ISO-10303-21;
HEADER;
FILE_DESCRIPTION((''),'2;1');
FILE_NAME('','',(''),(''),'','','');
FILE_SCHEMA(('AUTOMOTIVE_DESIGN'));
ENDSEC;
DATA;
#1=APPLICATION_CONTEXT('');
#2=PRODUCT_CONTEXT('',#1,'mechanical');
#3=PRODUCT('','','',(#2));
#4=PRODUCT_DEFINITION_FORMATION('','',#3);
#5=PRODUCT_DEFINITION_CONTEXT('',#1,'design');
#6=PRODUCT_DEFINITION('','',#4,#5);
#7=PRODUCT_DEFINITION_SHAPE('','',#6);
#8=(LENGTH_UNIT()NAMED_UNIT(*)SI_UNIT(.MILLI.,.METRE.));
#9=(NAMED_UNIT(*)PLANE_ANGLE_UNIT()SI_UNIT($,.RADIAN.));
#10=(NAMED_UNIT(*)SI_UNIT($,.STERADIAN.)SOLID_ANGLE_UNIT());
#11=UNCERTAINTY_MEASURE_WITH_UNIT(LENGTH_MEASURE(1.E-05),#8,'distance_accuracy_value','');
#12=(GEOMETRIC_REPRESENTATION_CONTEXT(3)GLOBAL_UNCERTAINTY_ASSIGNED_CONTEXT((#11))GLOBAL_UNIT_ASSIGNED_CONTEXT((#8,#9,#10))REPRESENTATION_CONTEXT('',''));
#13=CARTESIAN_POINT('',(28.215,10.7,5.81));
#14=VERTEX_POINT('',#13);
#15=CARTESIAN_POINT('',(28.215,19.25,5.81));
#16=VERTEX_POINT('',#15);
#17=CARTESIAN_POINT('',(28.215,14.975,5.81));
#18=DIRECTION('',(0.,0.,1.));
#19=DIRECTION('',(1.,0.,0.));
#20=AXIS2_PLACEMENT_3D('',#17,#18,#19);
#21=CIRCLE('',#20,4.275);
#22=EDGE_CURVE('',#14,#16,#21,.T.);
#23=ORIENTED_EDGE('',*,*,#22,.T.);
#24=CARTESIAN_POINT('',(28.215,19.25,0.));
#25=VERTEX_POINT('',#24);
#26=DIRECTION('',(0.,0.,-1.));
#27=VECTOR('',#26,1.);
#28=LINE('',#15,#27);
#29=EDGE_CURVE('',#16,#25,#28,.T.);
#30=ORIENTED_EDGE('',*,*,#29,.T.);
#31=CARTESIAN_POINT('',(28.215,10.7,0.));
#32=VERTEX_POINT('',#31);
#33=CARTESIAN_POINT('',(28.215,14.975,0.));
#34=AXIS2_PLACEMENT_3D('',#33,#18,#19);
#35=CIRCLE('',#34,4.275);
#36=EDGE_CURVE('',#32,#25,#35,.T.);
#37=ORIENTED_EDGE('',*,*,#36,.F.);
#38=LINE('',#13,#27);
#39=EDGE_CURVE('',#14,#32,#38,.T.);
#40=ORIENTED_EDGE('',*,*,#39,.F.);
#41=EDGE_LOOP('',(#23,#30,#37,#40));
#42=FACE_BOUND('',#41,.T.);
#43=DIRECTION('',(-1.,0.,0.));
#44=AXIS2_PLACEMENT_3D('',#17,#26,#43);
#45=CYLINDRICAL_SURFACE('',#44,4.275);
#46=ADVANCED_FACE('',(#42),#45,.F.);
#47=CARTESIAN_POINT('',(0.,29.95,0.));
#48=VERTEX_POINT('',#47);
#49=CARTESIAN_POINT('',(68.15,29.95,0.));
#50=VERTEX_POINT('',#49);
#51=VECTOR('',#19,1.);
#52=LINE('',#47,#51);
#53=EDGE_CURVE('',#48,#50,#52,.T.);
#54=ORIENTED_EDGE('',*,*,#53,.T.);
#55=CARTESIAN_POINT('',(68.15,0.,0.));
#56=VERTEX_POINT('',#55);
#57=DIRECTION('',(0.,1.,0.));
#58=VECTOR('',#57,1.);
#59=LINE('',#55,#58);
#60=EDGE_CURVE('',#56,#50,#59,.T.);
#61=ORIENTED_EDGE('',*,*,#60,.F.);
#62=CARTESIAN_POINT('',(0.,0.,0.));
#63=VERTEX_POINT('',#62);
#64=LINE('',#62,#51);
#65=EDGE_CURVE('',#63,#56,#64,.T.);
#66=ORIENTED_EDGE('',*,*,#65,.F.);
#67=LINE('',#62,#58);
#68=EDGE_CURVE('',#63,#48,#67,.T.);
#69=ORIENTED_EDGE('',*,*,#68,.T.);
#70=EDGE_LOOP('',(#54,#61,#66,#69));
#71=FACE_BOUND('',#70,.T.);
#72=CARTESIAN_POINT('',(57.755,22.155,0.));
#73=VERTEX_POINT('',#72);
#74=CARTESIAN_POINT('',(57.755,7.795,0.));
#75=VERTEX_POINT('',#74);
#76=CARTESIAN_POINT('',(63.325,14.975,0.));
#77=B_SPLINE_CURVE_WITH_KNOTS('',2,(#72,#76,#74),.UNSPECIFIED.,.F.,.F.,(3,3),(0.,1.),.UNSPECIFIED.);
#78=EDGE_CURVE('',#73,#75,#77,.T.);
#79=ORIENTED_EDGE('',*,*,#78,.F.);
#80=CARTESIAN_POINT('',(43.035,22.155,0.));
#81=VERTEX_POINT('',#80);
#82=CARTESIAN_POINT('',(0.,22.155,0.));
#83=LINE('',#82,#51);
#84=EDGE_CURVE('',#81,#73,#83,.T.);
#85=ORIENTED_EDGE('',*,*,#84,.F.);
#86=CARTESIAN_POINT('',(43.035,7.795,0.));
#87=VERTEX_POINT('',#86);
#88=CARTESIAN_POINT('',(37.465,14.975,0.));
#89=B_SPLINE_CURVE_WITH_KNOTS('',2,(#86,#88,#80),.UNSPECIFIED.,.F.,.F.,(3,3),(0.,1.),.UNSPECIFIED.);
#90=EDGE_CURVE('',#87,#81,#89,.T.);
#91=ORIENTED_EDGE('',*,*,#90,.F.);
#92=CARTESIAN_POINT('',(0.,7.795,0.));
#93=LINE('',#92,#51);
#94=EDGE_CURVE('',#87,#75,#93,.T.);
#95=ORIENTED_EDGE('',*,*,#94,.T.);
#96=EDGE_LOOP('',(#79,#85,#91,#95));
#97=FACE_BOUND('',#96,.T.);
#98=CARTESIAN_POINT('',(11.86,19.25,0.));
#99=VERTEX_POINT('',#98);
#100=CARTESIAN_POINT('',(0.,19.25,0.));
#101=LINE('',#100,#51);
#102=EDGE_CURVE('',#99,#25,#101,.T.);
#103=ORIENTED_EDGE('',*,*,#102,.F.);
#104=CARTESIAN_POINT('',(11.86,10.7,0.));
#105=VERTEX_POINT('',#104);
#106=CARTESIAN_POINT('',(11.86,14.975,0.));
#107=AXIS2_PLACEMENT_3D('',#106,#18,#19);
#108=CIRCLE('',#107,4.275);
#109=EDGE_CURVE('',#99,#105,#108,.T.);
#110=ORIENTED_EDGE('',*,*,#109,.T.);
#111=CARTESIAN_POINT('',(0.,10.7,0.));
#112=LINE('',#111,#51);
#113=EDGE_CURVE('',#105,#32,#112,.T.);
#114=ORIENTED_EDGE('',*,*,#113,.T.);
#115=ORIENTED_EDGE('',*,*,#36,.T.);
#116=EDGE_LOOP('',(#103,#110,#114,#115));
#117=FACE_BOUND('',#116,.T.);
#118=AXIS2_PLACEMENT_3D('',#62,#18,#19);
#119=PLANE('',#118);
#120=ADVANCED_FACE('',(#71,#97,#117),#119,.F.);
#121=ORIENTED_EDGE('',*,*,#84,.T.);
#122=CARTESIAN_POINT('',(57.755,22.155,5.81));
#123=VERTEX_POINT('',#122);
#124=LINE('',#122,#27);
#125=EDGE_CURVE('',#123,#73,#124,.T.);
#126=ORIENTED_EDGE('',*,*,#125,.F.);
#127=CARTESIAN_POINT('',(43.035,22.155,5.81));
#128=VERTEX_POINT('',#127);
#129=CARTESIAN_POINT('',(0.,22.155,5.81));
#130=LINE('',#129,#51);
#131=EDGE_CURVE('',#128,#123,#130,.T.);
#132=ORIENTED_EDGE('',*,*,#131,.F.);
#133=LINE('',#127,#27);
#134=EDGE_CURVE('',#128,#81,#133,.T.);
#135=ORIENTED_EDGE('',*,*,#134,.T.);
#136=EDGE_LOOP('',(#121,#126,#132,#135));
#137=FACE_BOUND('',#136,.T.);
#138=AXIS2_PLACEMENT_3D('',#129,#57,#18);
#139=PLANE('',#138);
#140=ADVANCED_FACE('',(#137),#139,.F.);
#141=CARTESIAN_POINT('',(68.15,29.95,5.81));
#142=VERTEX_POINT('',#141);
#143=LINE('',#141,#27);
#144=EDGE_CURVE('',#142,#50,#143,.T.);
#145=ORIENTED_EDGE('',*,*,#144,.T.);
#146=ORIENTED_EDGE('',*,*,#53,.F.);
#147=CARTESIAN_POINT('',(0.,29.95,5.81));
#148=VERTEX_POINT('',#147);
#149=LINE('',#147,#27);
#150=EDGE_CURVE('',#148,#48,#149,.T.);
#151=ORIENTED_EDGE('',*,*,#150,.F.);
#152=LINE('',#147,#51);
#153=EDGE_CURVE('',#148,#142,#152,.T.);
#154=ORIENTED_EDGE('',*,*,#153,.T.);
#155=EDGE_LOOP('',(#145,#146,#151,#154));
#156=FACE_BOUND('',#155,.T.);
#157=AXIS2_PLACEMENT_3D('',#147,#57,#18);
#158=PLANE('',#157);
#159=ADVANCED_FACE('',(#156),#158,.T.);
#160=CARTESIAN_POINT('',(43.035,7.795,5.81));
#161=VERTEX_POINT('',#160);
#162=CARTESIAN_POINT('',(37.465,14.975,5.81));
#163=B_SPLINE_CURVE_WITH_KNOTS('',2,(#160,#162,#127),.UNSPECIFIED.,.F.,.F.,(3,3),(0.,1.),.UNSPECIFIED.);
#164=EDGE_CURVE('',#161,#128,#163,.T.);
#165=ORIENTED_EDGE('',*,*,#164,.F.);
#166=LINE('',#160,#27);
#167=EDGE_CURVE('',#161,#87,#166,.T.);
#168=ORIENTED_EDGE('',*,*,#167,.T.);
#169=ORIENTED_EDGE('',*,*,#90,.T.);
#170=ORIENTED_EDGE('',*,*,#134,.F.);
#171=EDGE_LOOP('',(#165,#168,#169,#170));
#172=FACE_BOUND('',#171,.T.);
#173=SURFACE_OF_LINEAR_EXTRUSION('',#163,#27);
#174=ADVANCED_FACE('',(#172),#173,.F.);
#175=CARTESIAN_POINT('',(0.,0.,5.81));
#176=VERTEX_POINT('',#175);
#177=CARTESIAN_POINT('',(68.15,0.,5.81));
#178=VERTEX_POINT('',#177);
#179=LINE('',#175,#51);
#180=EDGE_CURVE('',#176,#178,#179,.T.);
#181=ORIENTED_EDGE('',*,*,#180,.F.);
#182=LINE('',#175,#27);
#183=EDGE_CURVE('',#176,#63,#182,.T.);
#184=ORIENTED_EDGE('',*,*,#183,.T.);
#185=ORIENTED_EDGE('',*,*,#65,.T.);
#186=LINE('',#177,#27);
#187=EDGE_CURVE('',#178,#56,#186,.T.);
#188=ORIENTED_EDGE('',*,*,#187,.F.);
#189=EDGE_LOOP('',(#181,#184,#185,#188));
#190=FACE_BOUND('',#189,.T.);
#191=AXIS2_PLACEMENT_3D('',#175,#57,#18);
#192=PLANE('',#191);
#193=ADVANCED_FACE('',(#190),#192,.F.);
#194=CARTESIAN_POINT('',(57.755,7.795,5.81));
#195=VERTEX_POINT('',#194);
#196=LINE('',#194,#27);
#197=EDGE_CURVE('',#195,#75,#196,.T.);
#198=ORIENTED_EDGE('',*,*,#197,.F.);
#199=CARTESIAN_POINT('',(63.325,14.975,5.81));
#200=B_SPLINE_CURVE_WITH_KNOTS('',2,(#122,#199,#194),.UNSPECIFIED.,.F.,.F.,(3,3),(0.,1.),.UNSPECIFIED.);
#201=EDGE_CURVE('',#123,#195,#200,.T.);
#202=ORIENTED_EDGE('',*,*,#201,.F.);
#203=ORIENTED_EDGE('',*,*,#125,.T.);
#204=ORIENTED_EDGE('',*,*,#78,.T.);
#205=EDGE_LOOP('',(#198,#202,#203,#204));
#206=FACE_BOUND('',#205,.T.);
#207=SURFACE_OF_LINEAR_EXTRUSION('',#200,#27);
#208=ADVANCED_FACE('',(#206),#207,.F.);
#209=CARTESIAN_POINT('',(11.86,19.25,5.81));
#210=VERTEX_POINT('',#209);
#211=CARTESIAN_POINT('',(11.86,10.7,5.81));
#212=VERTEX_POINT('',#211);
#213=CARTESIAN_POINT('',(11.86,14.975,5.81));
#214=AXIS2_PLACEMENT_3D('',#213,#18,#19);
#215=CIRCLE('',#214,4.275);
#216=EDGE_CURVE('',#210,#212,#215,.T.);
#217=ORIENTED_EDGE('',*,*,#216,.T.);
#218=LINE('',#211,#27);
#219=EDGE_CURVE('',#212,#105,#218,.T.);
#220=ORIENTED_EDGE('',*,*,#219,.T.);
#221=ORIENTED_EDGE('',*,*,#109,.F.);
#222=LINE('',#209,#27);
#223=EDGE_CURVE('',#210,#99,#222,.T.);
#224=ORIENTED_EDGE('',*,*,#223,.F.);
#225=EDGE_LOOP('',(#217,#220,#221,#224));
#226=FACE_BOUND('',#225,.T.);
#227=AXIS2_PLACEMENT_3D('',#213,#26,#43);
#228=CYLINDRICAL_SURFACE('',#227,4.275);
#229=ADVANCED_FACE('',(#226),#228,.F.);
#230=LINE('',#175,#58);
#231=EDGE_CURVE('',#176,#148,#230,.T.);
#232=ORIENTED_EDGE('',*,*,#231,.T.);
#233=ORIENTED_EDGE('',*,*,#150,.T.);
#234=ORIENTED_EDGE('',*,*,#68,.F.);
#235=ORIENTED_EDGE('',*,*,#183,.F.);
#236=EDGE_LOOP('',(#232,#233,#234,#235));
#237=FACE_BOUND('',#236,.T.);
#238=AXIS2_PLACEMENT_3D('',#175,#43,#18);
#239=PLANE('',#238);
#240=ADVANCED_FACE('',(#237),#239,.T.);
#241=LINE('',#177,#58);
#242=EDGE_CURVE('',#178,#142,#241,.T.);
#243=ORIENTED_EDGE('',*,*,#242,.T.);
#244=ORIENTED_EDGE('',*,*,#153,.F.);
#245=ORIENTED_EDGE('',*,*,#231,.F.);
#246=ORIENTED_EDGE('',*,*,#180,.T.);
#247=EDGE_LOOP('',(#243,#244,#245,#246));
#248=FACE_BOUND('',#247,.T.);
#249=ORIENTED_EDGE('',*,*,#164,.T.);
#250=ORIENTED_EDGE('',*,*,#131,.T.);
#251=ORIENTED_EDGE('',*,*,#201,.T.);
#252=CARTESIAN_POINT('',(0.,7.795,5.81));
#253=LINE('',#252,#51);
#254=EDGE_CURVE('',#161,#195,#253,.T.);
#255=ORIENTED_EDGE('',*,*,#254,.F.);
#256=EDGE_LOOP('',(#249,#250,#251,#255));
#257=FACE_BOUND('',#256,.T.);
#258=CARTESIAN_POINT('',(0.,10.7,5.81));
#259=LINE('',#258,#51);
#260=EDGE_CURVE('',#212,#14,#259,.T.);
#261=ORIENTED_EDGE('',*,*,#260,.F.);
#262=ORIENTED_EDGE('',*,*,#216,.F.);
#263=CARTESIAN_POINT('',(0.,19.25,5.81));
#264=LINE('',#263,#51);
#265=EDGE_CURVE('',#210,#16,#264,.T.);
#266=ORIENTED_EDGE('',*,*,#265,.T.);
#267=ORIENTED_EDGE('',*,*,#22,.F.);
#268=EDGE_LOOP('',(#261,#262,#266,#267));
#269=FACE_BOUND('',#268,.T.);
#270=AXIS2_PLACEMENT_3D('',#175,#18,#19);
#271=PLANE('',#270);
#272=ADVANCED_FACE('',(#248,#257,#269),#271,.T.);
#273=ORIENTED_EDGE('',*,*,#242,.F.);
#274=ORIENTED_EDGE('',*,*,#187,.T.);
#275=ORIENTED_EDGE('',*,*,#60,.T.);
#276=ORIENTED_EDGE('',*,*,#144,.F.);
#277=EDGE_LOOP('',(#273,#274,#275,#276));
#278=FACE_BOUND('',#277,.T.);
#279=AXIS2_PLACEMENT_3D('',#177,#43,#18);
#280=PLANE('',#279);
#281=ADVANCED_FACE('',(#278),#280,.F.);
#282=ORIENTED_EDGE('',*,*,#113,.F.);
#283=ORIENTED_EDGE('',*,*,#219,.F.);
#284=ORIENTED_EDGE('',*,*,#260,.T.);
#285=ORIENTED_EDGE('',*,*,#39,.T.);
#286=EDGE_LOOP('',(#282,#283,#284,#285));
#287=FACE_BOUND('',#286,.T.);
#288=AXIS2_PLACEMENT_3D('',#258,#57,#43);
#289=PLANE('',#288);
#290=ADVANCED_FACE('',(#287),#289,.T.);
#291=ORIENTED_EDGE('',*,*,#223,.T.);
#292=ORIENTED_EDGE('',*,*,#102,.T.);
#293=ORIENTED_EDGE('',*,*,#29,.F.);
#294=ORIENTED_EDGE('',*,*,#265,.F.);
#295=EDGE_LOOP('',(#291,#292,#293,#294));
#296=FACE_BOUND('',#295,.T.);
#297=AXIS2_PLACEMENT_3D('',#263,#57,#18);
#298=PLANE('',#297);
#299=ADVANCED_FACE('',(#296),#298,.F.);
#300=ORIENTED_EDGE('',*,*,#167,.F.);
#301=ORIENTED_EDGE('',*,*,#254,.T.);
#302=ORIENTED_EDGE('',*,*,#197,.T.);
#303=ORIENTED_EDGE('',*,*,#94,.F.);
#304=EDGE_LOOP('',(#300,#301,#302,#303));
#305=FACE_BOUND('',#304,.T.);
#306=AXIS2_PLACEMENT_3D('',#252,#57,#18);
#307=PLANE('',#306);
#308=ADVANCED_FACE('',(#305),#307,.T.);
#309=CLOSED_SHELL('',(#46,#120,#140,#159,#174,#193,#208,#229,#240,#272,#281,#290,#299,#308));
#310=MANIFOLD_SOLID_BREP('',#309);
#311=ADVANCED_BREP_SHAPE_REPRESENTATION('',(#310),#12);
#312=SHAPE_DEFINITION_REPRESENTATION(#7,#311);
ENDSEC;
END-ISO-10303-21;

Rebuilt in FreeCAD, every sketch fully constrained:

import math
import FreeCAD as App
import Part
import Sketcher

V = App.Vector
Q = App.Units.Quantity

doc = App.newDocument("Part")
body = doc.addObject("PartDesign::Body", "Body")

# Sketch on XY plane
sketch1 = body.newObject("Sketcher::SketchObject", "Sketch")
sketch1.AttachmentSupport = (doc.getObject("XY_Plane"), [""])
sketch1.MapMode = "FlatFace"
sketch1.addGeometry([
    Part.LineSegment(V(0, 29.95, 0), V(0, 0, 0)),  # 0
    Part.LineSegment(V(0, 0, 0), V(68.15, 0, 0)),  # 1
    Part.LineSegment(V(68.15, 0, 0), V(68.15, 29.95, 0)),  # 2
    Part.LineSegment(V(68.15, 29.95, 0), V(0, 29.95, 0)),  # 3
    Part.LineSegment(V(28.215, 10.7, 0), V(11.86, 10.7, 0)),  # 4
    Part.ArcOfCircle(Part.Circle(V(11.86, 14.975, 0), V(0, 0, 1), 4.275), math.radians(180), math.radians(270)),  # 5
    Part.ArcOfCircle(Part.Circle(V(11.86, 14.975, 0), V(0, 0, 1), 4.275), math.radians(90), math.radians(180)),  # 6
    Part.LineSegment(V(11.86, 19.25, 0), V(28.215, 19.25, 0)),  # 7
    Part.ArcOfCircle(Part.Circle(V(28.215, 14.975, 0), V(0, 0, 1), 4.275), math.radians(0), math.radians(90)),  # 8
    Part.ArcOfCircle(Part.Circle(V(28.215, 14.975, 0), V(0, 0, 1), 4.275), math.radians(-90), math.radians(0)),  # 9
    Part.LineSegment(V(43.035, 22.155, 0), V(57.755, 22.155, 0)),  # 10
    Part.BSplineCurve([V(57.755, 22.155, 0), V(63.325, 14.975, 0), V(57.755, 7.795, 0)], [3, 3], [0, 1], False, 2, [1, 1, 1], False),  # 11
    Part.LineSegment(V(57.755, 7.795, 0), V(43.035, 7.795, 0)),  # 12
    Part.BSplineCurve([V(43.035, 7.795, 0), V(37.465, 14.975, 0), V(43.035, 22.155, 0)], [3, 3], [0, 1], False, 2, [1, 1, 1], False),  # 13
], False)
sketch1.addConstraint([
    Sketcher.Constraint("Block", 11),
    Sketcher.Constraint("Block", 13),
    Sketcher.Constraint("Coincident", 0, 2, 1, 1),
    Sketcher.Constraint("Coincident", 1, 2, 2, 1),
    Sketcher.Constraint("Coincident", 2, 2, 3, 1),
    Sketcher.Constraint("Coincident", 3, 2, 0, 1),
    Sketcher.Constraint("Tangent", 4, 2, 5, 2),
    Sketcher.Constraint("Tangent", 5, 1, 6, 2),
    Sketcher.Constraint("Tangent", 6, 1, 7, 1),
    Sketcher.Constraint("Tangent", 7, 2, 8, 2),
    Sketcher.Constraint("Tangent", 8, 1, 9, 2),
    Sketcher.Constraint("Tangent", 9, 1, 4, 1),
    Sketcher.Constraint("Coincident", 10, 2, 11, 1),
    Sketcher.Constraint("Coincident", 11, 2, 12, 1),
    Sketcher.Constraint("Coincident", 12, 2, 13, 1),
    Sketcher.Constraint("Coincident", 13, 2, 10, 1),
    Sketcher.Constraint("Vertical", 0),
    Sketcher.Constraint("Horizontal", 1),
    Sketcher.Constraint("Vertical", 2),
    Sketcher.Constraint("Horizontal", 3),
    Sketcher.Constraint("Horizontal", 4),
    Sketcher.Constraint("Horizontal", 7),
    Sketcher.Constraint("Coincident", 0, 2, -1, 1),
    Sketcher.Constraint("Equal", 5, 6),
    Sketcher.Constraint("Equal", 6, 8),
    Sketcher.Constraint("Horizontal", 9, 3, 5, 1),
    Sketcher.Constraint("Horizontal", 5, 1, 8, 1),
    Sketcher.Constraint("Radius", 5, Q("4.275 mm")),
    Sketcher.Constraint("DistanceX", 1, 1, 1, 2, Q("68.15 mm")),
    Sketcher.Constraint("DistanceY", 0, 2, 0, 1, Q("29.95 mm")),
    Sketcher.Constraint("DistanceY", -1, 1, 4, 2, Q("10.7 mm")),
    Sketcher.Constraint("DistanceX", 4, 2, 4, 1, Q("16.355 mm")),
    Sketcher.Constraint("DistanceX", -1, 1, 5, 3, Q("11.86 mm")),
])
pad1 = body.newObject("PartDesign::Pad", "Pad")
pad1.Profile = sketch1
pad1.Length = 5.81

doc.recompute()
